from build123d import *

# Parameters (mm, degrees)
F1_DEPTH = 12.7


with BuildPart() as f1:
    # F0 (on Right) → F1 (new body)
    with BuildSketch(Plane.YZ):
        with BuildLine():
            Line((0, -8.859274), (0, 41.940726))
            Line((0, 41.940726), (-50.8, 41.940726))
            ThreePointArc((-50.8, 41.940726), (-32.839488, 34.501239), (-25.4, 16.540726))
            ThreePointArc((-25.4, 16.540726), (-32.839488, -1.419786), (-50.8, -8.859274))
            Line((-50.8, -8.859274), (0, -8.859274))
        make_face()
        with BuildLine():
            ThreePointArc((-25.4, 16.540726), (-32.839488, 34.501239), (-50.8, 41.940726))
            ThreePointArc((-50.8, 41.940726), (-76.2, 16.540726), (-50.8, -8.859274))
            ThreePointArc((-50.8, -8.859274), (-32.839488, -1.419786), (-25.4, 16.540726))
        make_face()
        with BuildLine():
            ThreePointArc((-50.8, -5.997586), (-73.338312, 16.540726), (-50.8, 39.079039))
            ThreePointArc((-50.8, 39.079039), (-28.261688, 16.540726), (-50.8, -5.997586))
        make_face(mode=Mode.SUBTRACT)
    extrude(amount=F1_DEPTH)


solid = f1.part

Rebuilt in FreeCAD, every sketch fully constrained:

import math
import FreeCAD as App
import Part
import Sketcher
from FreeCAD import Vector
Q = App.Units.Quantity

doc = App.newDocument("Part")
body = doc.addObject("PartDesign::Body", "Body")

# Sketch on YZ plane
sketch1 = body.newObject("Sketcher::SketchObject", "Sketch")
sketch1.AttachmentSupport = (doc.getObject("YZ_Plane"), [""])
sketch1.MapMode = "FlatFace"
sketch1.addGeometry(Part.LineSegment(Vector(0, -8.859274, 0), Vector(0, 41.940726, 0)), False)
sketch1.addGeometry(Part.LineSegment(Vector(0, 41.940726, 0), Vector(-50.8, 41.940726, 0)), False)
sketch1.addGeometry(Part.ArcOfCircle(Part.Circle(Vector(-50.8, 16.540726, 0), Vector(0, 0, 1), 25.4), math.radians(90), math.radians(270)), False)
sketch1.addGeometry(Part.LineSegment(Vector(-50.8, -8.859274, 0), Vector(0, -8.859274, 0)), False)
sketch1.addGeometry(Part.ArcOfCircle(Part.Circle(Vector(-50.800001, 16.540727, 0), Vector(0, 0, 1), 22.538312), math.radians(-89.999999), math.radians(89.999999)), False)
sketch1.addGeometry(Part.ArcOfCircle(Part.Circle(Vector(-50.799999, 16.540727, 0), Vector(0, 0, 1), 22.538312), math.radians(90.000001), math.radians(269.999999)), False)
sketch1.addConstraint(Sketcher.Constraint("Coincident", 0, 2, 1, 1))
sketch1.addConstraint(Sketcher.Constraint("Tangent", 1, 2, 2, 1))
sketch1.addConstraint(Sketcher.Constraint("Tangent", 2, 2, 3, 1))
sketch1.addConstraint(Sketcher.Constraint("Coincident", 3, 2, 0, 1))
sketch1.addConstraint(Sketcher.Constraint("Tangent", 4, 1, 5, 2))
sketch1.addConstraint(Sketcher.Constraint("Coincident", 5, 1, 4, 2))
sketch1.addConstraint(Sketcher.Constraint("Vertical", 0))
sketch1.addConstraint(Sketcher.Constraint("Horizontal", 1))
sketch1.addConstraint(Sketcher.Constraint("Horizontal", 3))
sketch1.addConstraint(Sketcher.Constraint("Coincident", 4, 3, 2, 3))
sketch1.addConstraint(Sketcher.Constraint("PointOnObject", 0, 2, -2))
sketch1.addConstraint(Sketcher.Constraint("Vertical", 2, 2, 4, 1))
sketch1.addConstraint(Sketcher.Constraint("Vertical", 4, 1, 5, 1))
sketch1.addConstraint(Sketcher.Constraint("Equal", 3, 0))
sketch1.addConstraint(Sketcher.Constraint("Radius", 2, Q("1 in")))
sketch1.addConstraint(Sketcher.Constraint("Radius", 4, 22.538312))
sketch1.addConstraint(Sketcher.Constraint("DistanceY", -1, 1, 5, 1, 39.079039))
pad1 = body.newObject("PartDesign::Pad", "Pad")
pad1.Profile = sketch1
pad1.Length = Q("0.5 in")

doc.recompute()
